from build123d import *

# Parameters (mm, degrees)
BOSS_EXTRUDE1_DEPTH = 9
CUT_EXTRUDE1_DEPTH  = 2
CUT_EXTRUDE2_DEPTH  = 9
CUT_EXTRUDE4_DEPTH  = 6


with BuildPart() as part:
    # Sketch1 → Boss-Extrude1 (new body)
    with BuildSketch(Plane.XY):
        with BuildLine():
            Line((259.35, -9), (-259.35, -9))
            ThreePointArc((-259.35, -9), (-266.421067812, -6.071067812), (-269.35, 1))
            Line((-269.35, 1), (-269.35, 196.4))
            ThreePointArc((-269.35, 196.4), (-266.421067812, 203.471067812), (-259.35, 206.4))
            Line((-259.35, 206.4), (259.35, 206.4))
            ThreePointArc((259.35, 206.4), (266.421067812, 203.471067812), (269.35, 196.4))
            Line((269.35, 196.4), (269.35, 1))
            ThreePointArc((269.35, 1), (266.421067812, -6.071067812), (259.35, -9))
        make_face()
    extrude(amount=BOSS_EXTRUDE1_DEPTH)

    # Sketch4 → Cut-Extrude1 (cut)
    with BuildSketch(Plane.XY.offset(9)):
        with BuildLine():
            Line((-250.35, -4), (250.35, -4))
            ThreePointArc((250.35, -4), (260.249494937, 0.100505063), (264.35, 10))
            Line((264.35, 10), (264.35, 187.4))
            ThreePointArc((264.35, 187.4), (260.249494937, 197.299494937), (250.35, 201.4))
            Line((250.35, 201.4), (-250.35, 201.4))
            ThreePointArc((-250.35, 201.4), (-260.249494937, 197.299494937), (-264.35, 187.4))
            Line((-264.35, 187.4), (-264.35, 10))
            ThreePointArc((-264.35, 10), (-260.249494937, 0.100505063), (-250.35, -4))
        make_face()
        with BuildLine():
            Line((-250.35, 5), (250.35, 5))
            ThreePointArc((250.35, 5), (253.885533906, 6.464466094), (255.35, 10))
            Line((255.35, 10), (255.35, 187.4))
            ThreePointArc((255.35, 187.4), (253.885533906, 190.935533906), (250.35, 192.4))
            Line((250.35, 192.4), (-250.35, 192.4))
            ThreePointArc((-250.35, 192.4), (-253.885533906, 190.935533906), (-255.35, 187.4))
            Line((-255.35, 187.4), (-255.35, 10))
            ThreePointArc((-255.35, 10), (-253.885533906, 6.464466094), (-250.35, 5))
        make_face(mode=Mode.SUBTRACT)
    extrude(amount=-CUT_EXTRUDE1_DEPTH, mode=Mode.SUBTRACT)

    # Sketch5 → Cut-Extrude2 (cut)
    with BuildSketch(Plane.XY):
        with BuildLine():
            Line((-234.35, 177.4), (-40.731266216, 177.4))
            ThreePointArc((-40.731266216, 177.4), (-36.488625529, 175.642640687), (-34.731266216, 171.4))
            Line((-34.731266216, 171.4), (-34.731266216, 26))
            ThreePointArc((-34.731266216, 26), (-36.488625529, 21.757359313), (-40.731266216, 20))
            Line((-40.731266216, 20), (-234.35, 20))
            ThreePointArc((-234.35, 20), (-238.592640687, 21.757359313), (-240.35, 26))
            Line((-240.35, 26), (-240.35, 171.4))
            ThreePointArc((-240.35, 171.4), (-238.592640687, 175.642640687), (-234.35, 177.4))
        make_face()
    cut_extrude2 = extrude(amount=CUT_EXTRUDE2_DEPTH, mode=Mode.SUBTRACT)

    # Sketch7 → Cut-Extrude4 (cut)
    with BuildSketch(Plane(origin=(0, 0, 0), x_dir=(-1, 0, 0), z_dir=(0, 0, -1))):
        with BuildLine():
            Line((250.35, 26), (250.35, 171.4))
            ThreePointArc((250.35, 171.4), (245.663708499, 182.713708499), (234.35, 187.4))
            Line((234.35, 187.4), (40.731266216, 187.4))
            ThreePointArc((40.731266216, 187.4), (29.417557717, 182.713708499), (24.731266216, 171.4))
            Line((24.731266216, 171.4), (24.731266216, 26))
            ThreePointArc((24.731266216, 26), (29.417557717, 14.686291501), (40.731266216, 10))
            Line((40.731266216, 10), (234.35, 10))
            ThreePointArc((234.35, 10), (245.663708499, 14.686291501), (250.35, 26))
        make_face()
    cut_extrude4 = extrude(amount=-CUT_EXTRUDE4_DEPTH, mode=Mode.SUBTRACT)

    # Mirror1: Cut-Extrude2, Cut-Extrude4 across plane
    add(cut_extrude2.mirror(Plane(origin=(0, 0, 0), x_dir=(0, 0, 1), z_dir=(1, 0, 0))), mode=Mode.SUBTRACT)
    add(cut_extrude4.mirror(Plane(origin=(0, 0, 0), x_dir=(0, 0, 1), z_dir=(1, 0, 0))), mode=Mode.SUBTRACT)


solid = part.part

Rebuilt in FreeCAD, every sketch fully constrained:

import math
import FreeCAD as App
import Part
import Sketcher
from FreeCAD import Vector

doc = App.newDocument("Part")
params = doc.addObject("Spreadsheet::Sheet", "Params")
for row, (alias, value) in enumerate([
    ("sketch1_radius", "10 mm"),
    ("sketch1_width", "518.7 mm"),
    ("sketch1_height", "195.4 mm"),
    ("pad1_length", "9 mm"),
    ("sketch2_radius", "14 mm"),
    ("sketch2_radius2", "5 mm"),
    ("sketch2_width", "500.7 mm"),
    ("sketch2_height", "177.4 mm"),
    ("pocket1_length", "2 mm"),
    ("sketch3_radius", "6 mm"),
    ("sketch3_height", "145.4 mm"),
    ("pocket2_length", "9 mm"),
    ("sketch4_radius", "16 mm"),
    ("sketch4_height", "145.4 mm"),
    ("pocket3_length", "6 mm"),
], start=1):
    params.set(f"A{row}", alias)
    params.set(f"B{row}", "=" + value)
    params.setAlias(f"B{row}", alias)

body = doc.addObject("PartDesign::Body", "Body")

# Sketch on XY plane
sketch1 = body.newObject("Sketcher::SketchObject", "Sketch")
sketch1.AttachmentSupport = (doc.getObject("XY_Plane"), [""])
sketch1.MapMode = "FlatFace"
sketch1.addGeometry([
    Part.LineSegment(Vector(-259, -9, 0), Vector(259, -9, 0)),  # 0
    Part.ArcOfCircle(Part.Circle(Vector(259, 1, 0), Vector(0, 0, 1), 10), math.radians(-90), math.radians(0)),  # 1
    Part.LineSegment(Vector(269, 1, 0), Vector(269, 196, 0)),  # 2
    Part.ArcOfCircle(Part.Circle(Vector(259, 196, 0), Vector(0, 0, 1), 10), math.radians(0), math.radians(90)),  # 3
    Part.LineSegment(Vector(259, 206, 0), Vector(-259, 206, 0)),  # 4
    Part.ArcOfCircle(Part.Circle(Vector(-259, 196, 0), Vector(0, 0, 1), 10), math.radians(90), math.radians(180)),  # 5
    Part.LineSegment(Vector(-269, 196, 0), Vector(-269, 1, 0)),  # 6
    Part.ArcOfCircle(Part.Circle(Vector(-259, 1, 0), Vector(0, 0, 1), 10), math.radians(180), math.radians(270)),  # 7
], False)
sketch1.addConstraint([
    Sketcher.Constraint("Tangent", 0, 2, 1, 1),
    Sketcher.Constraint("Tangent", 1, 2, 2, 1),
    Sketcher.Constraint("Tangent", 2, 2, 3, 1),
    Sketcher.Constraint("Tangent", 3, 2, 4, 1),
    Sketcher.Constraint("Tangent", 4, 2, 5, 1),
    Sketcher.Constraint("Tangent", 5, 2, 6, 1),
    Sketcher.Constraint("Tangent", 6, 2, 7, 1),
    Sketcher.Constraint("Tangent", 7, 2, 0, 1),
    Sketcher.Constraint("Horizontal", 0),
    Sketcher.Constraint("Vertical", 2),
    Sketcher.Constraint("Horizontal", 4),
    Sketcher.Constraint("Vertical", 6),
    Sketcher.Constraint("Equal", 1, 3),
    Sketcher.Constraint("Equal", 3, 5),
    Sketcher.Constraint("Equal", 5, 7),
    Sketcher.Constraint("Radius", 1, 10.0),
    Sketcher.Constraint("DistanceX", 0, 1, 0, 2, 518.7),
    Sketcher.Constraint("DistanceY", 2, 1, 2, 2, 195.4),
    Sketcher.Constraint("DistanceY", -1, 1, 1, 3, 1.0),
    Sketcher.Constraint("DistanceX", -1, 1, 1, 3, 259.35),
])
sketch1.setExpression("Constraints[15]", "Params.sketch1_radius")
sketch1.setExpression("Constraints[16]", "Params.sketch1_width")
sketch1.setExpression("Constraints[17]", "Params.sketch1_height")
pad1 = body.newObject("PartDesign::Pad", "Pad")
pad1.Profile = sketch1
pad1.setExpression("Length", "Params.pad1_length")

# Sketch on XY plane
sketch2 = body.newObject("Sketcher::SketchObject", "Sketch001")
sketch2.AttachmentSupport = (doc.getObject("XY_Plane"), [""])
sketch2.MapMode = "FlatFace"
sketch2.AttachmentOffset = App.Placement(Vector(0, 0, 9), App.Rotation())
sketch2.addGeometry([
    Part.LineSegment(Vector(-250, -4, 0), Vector(250, -4, 0)),  # 0
    Part.ArcOfCircle(Part.Circle(Vector(250, 10, 0), Vector(0, 0, 1), 14), math.radians(-90), math.radians(0)),  # 1
    Part.LineSegment(Vector(264, 10, 0), Vector(264, 187, 0)),  # 2
    Part.ArcOfCircle(Part.Circle(Vector(250, 187, 0), Vector(0, 0, 1), 14), math.radians(0), math.radians(90)),  # 3
    Part.LineSegment(Vector(250, 201, 0), Vector(-250, 201, 0)),  # 4
    Part.ArcOfCircle(Part.Circle(Vector(-250, 187, 0), Vector(0, 0, 1), 14), math.radians(90), math.radians(180)),  # 5
    Part.LineSegment(Vector(-264, 187, 0), Vector(-264, 10, 0)),  # 6
    Part.ArcOfCircle(Part.Circle(Vector(-250, 10, 0), Vector(0, 0, 1), 14), math.radians(180), math.radians(270)),  # 7
    Part.LineSegment(Vector(250, 5, 0), Vector(-250, 5, 0)),  # 8
    Part.ArcOfCircle(Part.Circle(Vector(-250, 10, 0), Vector(0, 0, 1), 5), math.radians(180), math.radians(270)),  # 9
    Part.LineSegment(Vector(-255, 10, 0), Vector(-255, 187, 0)),  # 10
    Part.ArcOfCircle(Part.Circle(Vector(-250, 187, 0), Vector(0, 0, 1), 5), math.radians(90), math.radians(180)),  # 11
    Part.LineSegment(Vector(-250, 192, 0), Vector(250, 192, 0)),  # 12
    Part.ArcOfCircle(Part.Circle(Vector(250, 187, 0), Vector(0, 0, 1), 5), math.radians(0), math.radians(90)),  # 13
    Part.LineSegment(Vector(255, 187, 0), Vector(255, 10, 0)),  # 14
    Part.ArcOfCircle(Part.Circle(Vector(250, 10, 0), Vector(0, 0, 1), 5), math.radians(-90), math.radians(0)),  # 15
], False)
sketch2.addConstraint([
    Sketcher.Constraint("Tangent", 0, 2, 1, 1),
    Sketcher.Constraint("Tangent", 1, 2, 2, 1),
    Sketcher.Constraint("Tangent", 2, 2, 3, 1),
    Sketcher.Constraint("Tangent", 3, 2, 4, 1),
    Sketcher.Constraint("Tangent", 4, 2, 5, 1),
    Sketcher.Constraint("Tangent", 5, 2, 6, 1),
    Sketcher.Constraint("Tangent", 6, 2, 7, 1),
    Sketcher.Constraint("Tangent", 7, 2, 0, 1),
    Sketcher.Constraint("Tangent", 8, 2, 9, 2),
    Sketcher.Constraint("Tangent", 9, 1, 10, 1),
    Sketcher.Constraint("Tangent", 10, 2, 11, 2),
    Sketcher.Constraint("Tangent", 11, 1, 12, 1),
    Sketcher.Constraint("Tangent", 12, 2, 13, 2),
    Sketcher.Constraint("Tangent", 13, 1, 14, 1),
    Sketcher.Constraint("Tangent", 14, 2, 15, 2),
    Sketcher.Constraint("Tangent", 15, 1, 8, 1),
    Sketcher.Constraint("Horizontal", 0),
    Sketcher.Constraint("Vertical", 2),
    Sketcher.Constraint("Horizontal", 4),
    Sketcher.Constraint("Vertical", 6),
    Sketcher.Constraint("Horizontal", 8),
    Sketcher.Constraint("Vertical", 10),
    Sketcher.Constraint("Horizontal", 12),
    Sketcher.Constraint("Vertical", 14),
    Sketcher.Constraint("Coincident", 9, 3, 7, 3),
    Sketcher.Constraint("Coincident", 11, 3, 5, 3),
    Sketcher.Constraint("Coincident", 13, 3, 3, 3),
    Sketcher.Constraint("Equal", 1, 3),
    Sketcher.Constraint("Equal", 3, 5),
    Sketcher.Constraint("Equal", 5, 7),
    Sketcher.Constraint("Equal", 13, 15),
    Sketcher.Constraint("Radius", 1, 14.0),
    Sketcher.Constraint("Radius", 9, 5.0),
    Sketcher.Constraint("DistanceX", 0, 1, 0, 2, 500.7),
    Sketcher.Constraint("DistanceY", 2, 1, 2, 2, 177.4),
    Sketcher.Constraint("DistanceY", -1, 1, 1, 3, 10.0),
    Sketcher.Constraint("DistanceX", -1, 1, 1, 3, 250.35),
])
sketch2.setExpression("Constraints[31]", "Params.sketch2_radius")
sketch2.setExpression("Constraints[32]", "Params.sketch2_radius2")
sketch2.setExpression("Constraints[33]", "Params.sketch2_width")
sketch2.setExpression("Constraints[34]", "Params.sketch2_height")
pocket1 = body.newObject("PartDesign::Pocket", "Pocket")
pocket1.Profile = sketch2
pocket1.setExpression("Length", "Params.pocket1_length")

# Sketch on XY plane
sketch3 = body.newObject("Sketcher::SketchObject", "Sketch002")
sketch3.AttachmentSupport = (doc.getObject("XY_Plane"), [""])
sketch3.MapMode = "FlatFace"
sketch3.addGeometry([
    Part.LineSegment(Vector(-41, 177, 0), Vector(-234, 177, 0)),  # 0
    Part.ArcOfCircle(Part.Circle(Vector(-234, 171, 0), Vector(0, 0, 1), 6), math.radians(90), math.radians(180)),  # 1
    Part.LineSegment(Vector(-240, 171, 0), Vector(-240, 26, 0)),  # 2
    Part.ArcOfCircle(Part.Circle(Vector(-234, 26, 0), Vector(0, 0, 1), 6), math.radians(180), math.radians(270)),  # 3
    Part.LineSegment(Vector(-234, 20, 0), Vector(-41, 20, 0)),  # 4
    Part.ArcOfCircle(Part.Circle(Vector(-41, 26, 0), Vector(0, 0, 1), 6), math.radians(-90), math.radians(0)),  # 5
    Part.LineSegment(Vector(-35, 26, 0), Vector(-35, 171, 0)),  # 6
    Part.ArcOfCircle(Part.Circle(Vector(-41, 171, 0), Vector(0, 0, 1), 6), math.radians(0), math.radians(90)),  # 7
], False)
sketch3.addConstraint([
    Sketcher.Constraint("Tangent", 0, 2, 1, 1),
    Sketcher.Constraint("Tangent", 1, 2, 2, 1),
    Sketcher.Constraint("Tangent", 2, 2, 3, 1),
    Sketcher.Constraint("Tangent", 3, 2, 4, 1),
    Sketcher.Constraint("Tangent", 4, 2, 5, 1),
    Sketcher.Constraint("Tangent", 5, 2, 6, 1),
    Sketcher.Constraint("Tangent", 6, 2, 7, 1),
    Sketcher.Constraint("Tangent", 7, 2, 0, 1),
    Sketcher.Constraint("Horizontal", 0),
    Sketcher.Constraint("Vertical", 2),
    Sketcher.Constraint("Horizontal", 4),
    Sketcher.Constraint("Vertical", 6),
    Sketcher.Constraint("Equal", 1, 3),
    Sketcher.Constraint("Equal", 3, 5),
    Sketcher.Constraint("Equal", 5, 7),
    Sketcher.Constraint("Radius", 1, 6.0),
    Sketcher.Constraint("DistanceY", 2, 2, 2, 1, 145.4),
    Sketcher.Constraint("DistanceY", -1, 1, 3, 3, 26.0),
    Sketcher.Constraint("DistanceX", 1, 3, -1, 1, 234.35),
    Sketcher.Constraint("DistanceX", 0, 2, 0, 1, 193.618734),
])
sketch3.setExpression("Constraints[15]", "Params.sketch3_radius")
sketch3.setExpression("Constraints[16]", "Params.sketch3_height")
pocket2 = body.newObject("PartDesign::Pocket", "Pocket001")
pocket2.Profile = sketch3
pocket2.setExpression("Length", "Params.pocket2_length")
pocket2.Reversed = True

# Sketch on XY plane
sketch4 = body.newObject("Sketcher::SketchObject", "Sketch003")
sketch4.AttachmentSupport = (doc.getObject("XY_Plane"), [""])
sketch4.MapMode = "FlatFace"
sketch4.addGeometry([
    Part.LineSegment(Vector(-250, 26, 0), Vector(-250, 171, 0)),  # 0
    Part.ArcOfCircle(Part.Circle(Vector(-234, 171, 0), Vector(0, 0, 1), 16), math.radians(90), math.radians(180)),  # 1
    Part.LineSegment(Vector(-234, 187, 0), Vector(-41, 187, 0)),  # 2
    Part.ArcOfCircle(Part.Circle(Vector(-41, 171, 0), Vector(0, 0, 1), 16), math.radians(0), math.radians(90)),  # 3
    Part.LineSegment(Vector(-25, 171, 0), Vector(-25, 26, 0)),  # 4
    Part.ArcOfCircle(Part.Circle(Vector(-41, 26, 0), Vector(0, 0, 1), 16), math.radians(-90), math.radians(0)),  # 5
    Part.LineSegment(Vector(-41, 10, 0), Vector(-234, 10, 0)),  # 6
    Part.ArcOfCircle(Part.Circle(Vector(-234, 26, 0), Vector(0, 0, 1), 16), math.radians(180), math.radians(270)),  # 7
], False)
sketch4.addConstraint([
    Sketcher.Constraint("Tangent", 0, 2, 1, 2),
    Sketcher.Constraint("Tangent", 1, 1, 2, 1),
    Sketcher.Constraint("Tangent", 2, 2, 3, 2),
    Sketcher.Constraint("Tangent", 3, 1, 4, 1),
    Sketcher.Constraint("Tangent", 4, 2, 5, 2),
    Sketcher.Constraint("Tangent", 5, 1, 6, 1),
    Sketcher.Constraint("Tangent", 6, 2, 7, 2),
    Sketcher.Constraint("Tangent", 7, 1, 0, 1),
    Sketcher.Constraint("Vertical", 0),
    Sketcher.Constraint("Horizontal", 2),
    Sketcher.Constraint("Vertical", 4),
    Sketcher.Constraint("Horizontal", 6),
    Sketcher.Constraint("Equal", 1, 3),
    Sketcher.Constraint("Equal", 3, 5),
    Sketcher.Constraint("Equal", 5, 7),
    Sketcher.Constraint("Radius", 1, 16.0),
    Sketcher.Constraint("DistanceY", 0, 1, 0, 2, 145.4),
    Sketcher.Constraint("DistanceY", -1, 1, 5, 3, 26.0),
    Sketcher.Constraint("DistanceX", 1, 3, -1, 1, 234.35),
    Sketcher.Constraint("DistanceX", 2, 1, 2, 2, 193.618734),
])
sketch4.setExpression("Constraints[15]", "Params.sketch4_radius")
sketch4.setExpression("Constraints[16]", "Params.sketch4_height")
pocket3 = body.newObject("PartDesign::Pocket", "Pocket002")
pocket3.Profile = sketch4
pocket3.setExpression("Length", "Params.pocket3_length")
pocket3.Reversed = True
doc.recompute()

mirrored = body.newObject("PartDesign::Mirrored", "Mirrored")
mirrored.Originals = [pocket2, pocket3]
mirrored.MirrorPlane = (doc.getObject("YZ_Plane"), [""])
body.Tip = mirrored

doc.recompute()
